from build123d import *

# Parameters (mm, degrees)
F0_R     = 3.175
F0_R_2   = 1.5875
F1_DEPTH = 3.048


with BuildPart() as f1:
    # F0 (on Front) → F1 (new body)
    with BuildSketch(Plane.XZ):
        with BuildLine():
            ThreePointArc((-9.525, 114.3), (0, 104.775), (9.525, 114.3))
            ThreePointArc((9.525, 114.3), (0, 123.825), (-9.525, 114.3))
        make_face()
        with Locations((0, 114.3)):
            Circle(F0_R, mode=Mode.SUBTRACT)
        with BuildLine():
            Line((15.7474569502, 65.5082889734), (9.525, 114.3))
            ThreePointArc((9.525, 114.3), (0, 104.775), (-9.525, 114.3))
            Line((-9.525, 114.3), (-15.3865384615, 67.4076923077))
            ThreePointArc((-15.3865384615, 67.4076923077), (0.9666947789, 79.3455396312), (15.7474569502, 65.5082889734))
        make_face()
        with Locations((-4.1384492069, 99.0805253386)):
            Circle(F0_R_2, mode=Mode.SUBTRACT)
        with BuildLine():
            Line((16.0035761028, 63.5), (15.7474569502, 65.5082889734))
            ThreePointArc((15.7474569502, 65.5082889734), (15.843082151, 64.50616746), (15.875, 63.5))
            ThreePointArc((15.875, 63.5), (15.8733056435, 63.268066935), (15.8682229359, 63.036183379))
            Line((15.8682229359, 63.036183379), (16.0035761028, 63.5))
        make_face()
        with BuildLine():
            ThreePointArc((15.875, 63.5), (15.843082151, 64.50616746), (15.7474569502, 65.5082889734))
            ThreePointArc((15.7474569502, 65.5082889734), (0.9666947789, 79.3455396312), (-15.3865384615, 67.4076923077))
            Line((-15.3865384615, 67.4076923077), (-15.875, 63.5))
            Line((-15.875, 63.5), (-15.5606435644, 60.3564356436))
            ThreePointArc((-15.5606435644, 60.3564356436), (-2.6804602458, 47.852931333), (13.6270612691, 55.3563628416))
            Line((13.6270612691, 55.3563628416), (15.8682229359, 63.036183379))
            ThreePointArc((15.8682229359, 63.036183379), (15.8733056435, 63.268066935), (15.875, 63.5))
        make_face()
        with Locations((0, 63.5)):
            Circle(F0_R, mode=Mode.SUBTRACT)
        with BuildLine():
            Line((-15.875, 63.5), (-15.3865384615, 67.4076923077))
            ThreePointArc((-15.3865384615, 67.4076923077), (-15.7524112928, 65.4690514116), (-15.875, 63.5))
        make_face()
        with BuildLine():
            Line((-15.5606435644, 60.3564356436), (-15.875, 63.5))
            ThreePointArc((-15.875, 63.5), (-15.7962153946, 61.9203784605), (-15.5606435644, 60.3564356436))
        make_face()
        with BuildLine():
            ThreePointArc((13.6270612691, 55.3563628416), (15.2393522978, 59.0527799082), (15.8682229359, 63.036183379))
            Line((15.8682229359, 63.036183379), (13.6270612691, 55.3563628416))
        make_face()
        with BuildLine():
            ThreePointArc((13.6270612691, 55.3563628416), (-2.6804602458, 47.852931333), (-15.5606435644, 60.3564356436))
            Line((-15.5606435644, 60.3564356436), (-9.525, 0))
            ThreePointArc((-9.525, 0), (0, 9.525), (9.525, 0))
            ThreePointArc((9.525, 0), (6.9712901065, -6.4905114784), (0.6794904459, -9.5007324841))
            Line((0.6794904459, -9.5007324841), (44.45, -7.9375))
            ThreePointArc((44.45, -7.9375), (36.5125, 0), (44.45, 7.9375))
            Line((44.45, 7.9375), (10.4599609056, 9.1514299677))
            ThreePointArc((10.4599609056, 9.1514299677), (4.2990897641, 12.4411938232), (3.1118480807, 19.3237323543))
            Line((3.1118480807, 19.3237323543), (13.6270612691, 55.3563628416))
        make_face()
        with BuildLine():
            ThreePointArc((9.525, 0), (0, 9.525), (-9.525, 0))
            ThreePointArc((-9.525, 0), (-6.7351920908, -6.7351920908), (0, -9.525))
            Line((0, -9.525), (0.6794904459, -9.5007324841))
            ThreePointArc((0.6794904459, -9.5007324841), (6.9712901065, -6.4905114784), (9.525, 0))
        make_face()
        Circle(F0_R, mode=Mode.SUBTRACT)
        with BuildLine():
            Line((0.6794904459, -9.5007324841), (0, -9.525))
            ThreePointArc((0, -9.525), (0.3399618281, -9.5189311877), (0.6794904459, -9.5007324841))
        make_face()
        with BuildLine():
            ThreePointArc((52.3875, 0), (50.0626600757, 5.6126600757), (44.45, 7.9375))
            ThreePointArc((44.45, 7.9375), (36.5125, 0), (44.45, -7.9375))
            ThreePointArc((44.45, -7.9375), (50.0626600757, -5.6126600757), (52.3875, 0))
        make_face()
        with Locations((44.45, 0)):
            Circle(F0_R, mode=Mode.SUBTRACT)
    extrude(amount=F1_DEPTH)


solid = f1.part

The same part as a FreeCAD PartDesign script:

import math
import FreeCAD as App
import Part
import Sketcher
Q = App.Units.Quantity

doc = App.newDocument("Part")
body = doc.addObject("PartDesign::Body", "Body")

sketch1 = body.newObject("Sketcher::SketchObject", "Sketch")
sketch1.AttachmentSupport = (doc.getObject("XZ_Plane"), [""])
sketch1.MapMode = "FlatFace"
sketch1.addGeometry(Part.ArcOfCircle(Part.Circle(App.Vector(0, 114.3, 0), App.Vector(0, 0, 1), 9.525), math.radians(0), math.radians(180)), False)
sketch1.addGeometry(Part.LineSegment(App.Vector(-9.525, 114.3, 0), App.Vector(-15.386538, 67.407692, 0)), False)
sketch1.addGeometry(Part.ArcOfCircle(Part.Circle(App.Vector(0, 63.5, 0), App.Vector(0, 0, 1), 15.875), math.radians(165.749967), math.radians(180)), False)
sketch1.addGeometry(Part.ArcOfCircle(Part.Circle(App.Vector(0, 63.5, 0), App.Vector(0, 0, 1), 15.875), math.radians(180), math.radians(191.421186)), False)
sketch1.addGeometry(Part.LineSegment(App.Vector(-15.560644, 60.356436, 0), App.Vector(-9.525, 0, 0)), False)
sketch1.addGeometry(Part.ArcOfCircle(Part.Circle(App.Vector(0, 0, 0), App.Vector(0, 0, 1), 9.525), math.radians(180), math.radians(270)), False)
sketch1.addGeometry(Part.ArcOfCircle(Part.Circle(App.Vector(0, 0, 0), App.Vector(0, 0, 1), 9.525), math.radians(-90), math.radians(-85.909183)), False)
sketch1.addGeometry(Part.LineSegment(App.Vector(0.67949, -9.500732, 0), App.Vector(44.45, -7.9375, 0)), False)
sketch1.addGeometry(Part.ArcOfCircle(Part.Circle(App.Vector(44.45, 0, 0), App.Vector(0, 0, 1), 7.9375), math.radians(-90), math.radians(0)), False)
sketch1.addGeometry(Part.ArcOfCircle(Part.Circle(App.Vector(44.45, 0, 0), App.Vector(0, 0, 1), 7.9375), math.radians(0), math.radians(90)), False)
sketch1.addGeometry(Part.LineSegment(App.Vector(44.45, 7.9375, 0), App.Vector(10.459961, 9.15143, 0)), False)
sketch1.addGeometry(Part.ArcOfCircle(Part.Circle(App.Vector(10.743716, 17.096565, 0), App.Vector(0, 0, 1), 7.9502), math.radians(163.731449), math.radians(267.954592)), False)
sketch1.addGeometry(Part.LineSegment(App.Vector(3.111848, 19.323732, 0), App.Vector(13.627061, 55.356363, 0)), False)
sketch1.addGeometry(Part.ArcOfCircle(Part.Circle(App.Vector(0, 63.5, 0), App.Vector(0, 0, 1), 15.875), math.radians(-30.862866), math.radians(-1.674237)), False)
sketch1.addGeometry(Part.LineSegment(App.Vector(15.868223, 63.036183, 0), App.Vector(16.003576, 63.5, 0)), False)
sketch1.addGeometry(Part.LineSegment(App.Vector(16.003576, 63.5, 0), App.Vector(15.747457, 65.508289, 0)), False)
sketch1.addGeometry(Part.LineSegment(App.Vector(15.747457, 65.508289, 0), App.Vector(9.525, 114.3, 0)), False)
sketch1.addGeometry(Part.Circle(App.Vector(0, 0, 0), App.Vector(0, 0, 1), 3.175), False)
sketch1.addGeometry(Part.Circle(App.Vector(44.45, 0, 0), App.Vector(0, 0, 1), 3.175), False)
sketch1.addGeometry(Part.Circle(App.Vector(0, 63.5, 0), App.Vector(0, 0, 1), 3.175), False)
sketch1.addGeometry(Part.Circle(App.Vector(-4.138449, 99.080525, 0), App.Vector(0, 0, 1), 1.5875), False)
sketch1.addGeometry(Part.Circle(App.Vector(0, 114.3, 0), App.Vector(0, 0, 1), 3.175), False)
sketch1.addConstraint(Sketcher.Constraint("Coincident", 0, 2, 1, 1))
sketch1.addConstraint(Sketcher.Constraint("Coincident", 1, 2, 2, 1))
sketch1.addConstraint(Sketcher.Constraint("Coincident", 2, 2, 3, 1))
sketch1.addConstraint(Sketcher.Constraint("Coincident", 3, 2, 4, 1))
sketch1.addConstraint(Sketcher.Constraint("Coincident", 4, 2, 5, 1))
sketch1.addConstraint(Sketcher.Constraint("Coincident", 5, 2, 6, 1))
sketch1.addConstraint(Sketcher.Constraint("Coincident", 6, 2, 7, 1))
sketch1.addConstraint(Sketcher.Constraint("Coincident", 7, 2, 8, 1))
sketch1.addConstraint(Sketcher.Constraint("Coincident", 8, 2, 9, 1))
sketch1.addConstraint(Sketcher.Constraint("Coincident", 9, 2, 10, 1))
sketch1.addConstraint(Sketcher.Constraint("Coincident", 10, 2, 11, 2))
sketch1.addConstraint(Sketcher.Constraint("Coincident", 11, 1, 12, 1))
sketch1.addConstraint(Sketcher.Constraint("Coincident", 12, 2, 13, 1))
sketch1.addConstraint(Sketcher.Constraint("Coincident", 13, 2, 14, 1))
sketch1.addConstraint(Sketcher.Constraint("Coincident", 14, 2, 15, 1))
sketch1.addConstraint(Sketcher.Constraint("Coincident", 15, 2, 16, 1))
sketch1.addConstraint(Sketcher.Constraint("Coincident", 16, 2, 0, 1))
sketch1.addConstraint(Sketcher.Constraint("Coincident", 5, 3, -1, 1))
sketch1.addConstraint(Sketcher.Constraint("Coincident", 6, 3, -1, 1))
sketch1.addConstraint(Sketcher.Constraint("Coincident", 17, 3, -1, 1))
sketch1.addConstraint(Sketcher.Constraint("Coincident", 3, 3, 2, 3))
sketch1.addConstraint(Sketcher.Constraint("Coincident", 9, 3, 8, 3))
sketch1.addConstraint(Sketcher.Constraint("Coincident", 13, 3, 2, 3))
sketch1.addConstraint(Sketcher.Constraint("Coincident", 18, 3, 8, 3))
sketch1.addConstraint(Sketcher.Constraint("Coincident", 19, 3, 2, 3))
sketch1.addConstraint(Sketcher.Constraint("Coincident", 21, 3, 0, 3))
sketch1.addConstraint(Sketcher.Constraint("PointOnObject", 0, 3, -2))
sketch1.addConstraint(Sketcher.Constraint("PointOnObject", 2, 3, -2))
sketch1.addConstraint(Sketcher.Constraint("PointOnObject", 8, 3, -1))
sketch1.addConstraint(Sketcher.Constraint("PointOnObject", 4, 2, -1))
sketch1.addConstraint(Sketcher.Constraint("PointOnObject", 5, 2, -2))
sketch1.addConstraint(Sketcher.Constraint("PointOnObject", 8, 2, -1))
sketch1.addConstraint(Sketcher.Constraint("Diameter", 17, Q("0.25 in")))
sketch1.addConstraint(Sketcher.Constraint("Diameter", 18, Q("0.25 in")))
sketch1.addConstraint(Sketcher.Constraint("Diameter", 19, Q("0.25 in")))
sketch1.addConstraint(Sketcher.Constraint("Diameter", 21, Q("0.25 in")))
sketch1.addConstraint(Sketcher.Constraint("Diameter", 20, Q("0.125 in")))
sketch1.addConstraint(Sketcher.Constraint("Radius", 0, Q("0.375 in")))
sketch1.addConstraint(Sketcher.Constraint("Radius", 2, Q("0.625 in")))
sketch1.addConstraint(Sketcher.Constraint("Radius", 5, Q("0.375 in")))
sketch1.addConstraint(Sketcher.Constraint("Radius", 8, Q("0.3125 in")))
sketch1.addConstraint(Sketcher.Constraint("Radius", 11, Q("0.313 in")))
sketch1.addConstraint(Sketcher.Constraint("Radius", 13, Q("0.625 in")))
sketch1.addConstraint(Sketcher.Constraint("DistanceY", 2, 3, 0, 3, Q("2 in")))
sketch1.addConstraint(Sketcher.Constraint("DistanceY", 3, 3, 0, 2, Q("2 in")))
sketch1.addConstraint(Sketcher.Constraint("DistanceY", -1, 1, 0, 3, Q("4.5 in")))
sketch1.addConstraint(Sketcher.Constraint("DistanceY", -1, 1, 2, 2, Q("2.5 in")))
sketch1.addConstraint(Sketcher.Constraint("DistanceY", -1, 1, 14, 2, Q("2.5 in")))
sketch1.addConstraint(Sketcher.Constraint("DistanceY", -1, 1, 16, 2, Q("4.5 in")))
sketch1.addConstraint(Sketcher.Constraint("DistanceX", -1, 1, 8, 3, Q("1.75 in")))
sketch1.addConstraint(Sketcher.Constraint("DistanceX", -1, 1, 7, 2, Q("1.75 in")))
sketch1.addConstraint(Sketcher.Constraint("DistanceX", -1, 1, 9, 2, Q("1.75 in")))
sketch1.addConstraint(Sketcher.Constraint("Distance", 10, Q("34.01171 mm")))
sketch1.addConstraint(Sketcher.Constraint("Distance", 16, Q("49.186889 mm")))
sketch1.addConstraint(Sketcher.Constraint("DistanceX", 20, 3, -1, 1, Q("4.138449 mm")))
sketch1.addConstraint(Sketcher.Constraint("DistanceX", 1, 2, -1, 1, Q("15.386538 mm")))
sketch1.addConstraint(Sketcher.Constraint("DistanceX", -1, 1, 6, 2, Q("0.67949 mm")))
sketch1.addConstraint(Sketcher.Constraint("DistanceX", -1, 1, 10, 2, Q("10.459961 mm")))
sketch1.addConstraint(Sketcher.Constraint("DistanceX", -1, 1, 11, 1, Q("3.111848 mm")))
sketch1.addConstraint(Sketcher.Constraint("DistanceX", -1, 1, 12, 2, Q("13.627061 mm")))
sketch1.addConstraint(Sketcher.Constraint("DistanceY", -1, 1, 15, 2, Q("65.508289 mm")))
sketch1.addConstraint(Sketcher.Constraint("DistanceX", 12, 2, 13, 2, Q("2.241162 mm")))
sketch1.addConstraint(Sketcher.Constraint("DistanceX", 15, 2, 14, 2, Q("0.256119 mm")))
sketch1.addConstraint(Sketcher.Constraint("Distance", 4, Q("60.657467 mm")))
sketch1.addConstraint(Sketcher.Constraint("Distance", 12, Q("37.535585 mm")))
sketch1.addConstraint(Sketcher.Constraint("DistanceY", -1, 1, 20, 3, Q("99.080525 mm")))
pad1 = body.newObject("PartDesign::Pad", "Pad")
pad1.Profile = sketch1
pad1.Length = Q("0.12 in")

doc.recompute()
